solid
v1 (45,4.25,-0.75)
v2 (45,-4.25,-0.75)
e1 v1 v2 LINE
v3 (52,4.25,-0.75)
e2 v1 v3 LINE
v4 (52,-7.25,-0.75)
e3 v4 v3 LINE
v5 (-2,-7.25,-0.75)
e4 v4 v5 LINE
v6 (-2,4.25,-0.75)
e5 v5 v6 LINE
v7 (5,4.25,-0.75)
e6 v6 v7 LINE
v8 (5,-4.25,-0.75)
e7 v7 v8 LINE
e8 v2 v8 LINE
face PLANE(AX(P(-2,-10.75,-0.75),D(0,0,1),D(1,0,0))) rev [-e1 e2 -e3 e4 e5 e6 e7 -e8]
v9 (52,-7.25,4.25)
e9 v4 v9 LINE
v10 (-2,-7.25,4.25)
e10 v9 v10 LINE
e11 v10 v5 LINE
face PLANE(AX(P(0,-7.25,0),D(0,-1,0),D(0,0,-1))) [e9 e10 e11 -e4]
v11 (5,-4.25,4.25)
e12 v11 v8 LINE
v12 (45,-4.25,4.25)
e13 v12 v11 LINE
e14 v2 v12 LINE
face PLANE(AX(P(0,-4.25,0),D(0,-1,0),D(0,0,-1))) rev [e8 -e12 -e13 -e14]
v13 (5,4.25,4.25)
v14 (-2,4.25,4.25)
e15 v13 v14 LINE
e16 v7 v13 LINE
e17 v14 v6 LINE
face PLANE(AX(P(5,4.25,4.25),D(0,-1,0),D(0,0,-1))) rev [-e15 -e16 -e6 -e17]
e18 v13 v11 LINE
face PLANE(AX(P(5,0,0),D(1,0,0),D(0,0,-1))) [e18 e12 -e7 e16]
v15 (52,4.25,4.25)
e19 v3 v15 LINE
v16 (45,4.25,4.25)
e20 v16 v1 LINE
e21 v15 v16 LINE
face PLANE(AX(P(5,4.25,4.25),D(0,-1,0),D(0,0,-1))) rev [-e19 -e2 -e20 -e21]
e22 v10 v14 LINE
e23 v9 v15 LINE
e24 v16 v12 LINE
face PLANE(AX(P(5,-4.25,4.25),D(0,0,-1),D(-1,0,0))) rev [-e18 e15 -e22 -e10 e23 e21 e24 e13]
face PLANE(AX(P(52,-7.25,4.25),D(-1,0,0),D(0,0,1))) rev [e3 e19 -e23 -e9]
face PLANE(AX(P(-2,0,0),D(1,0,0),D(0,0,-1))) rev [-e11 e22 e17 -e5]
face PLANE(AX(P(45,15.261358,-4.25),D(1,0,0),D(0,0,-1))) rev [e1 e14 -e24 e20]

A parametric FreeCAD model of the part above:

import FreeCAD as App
import Part
import Sketcher
from FreeCAD import Vector
Q = App.Units.Quantity


def add_polygon(sketch, points):
    """Adds a closed chain of lines whose ends are joined by coincident constraints."""
    first, n = sketch.GeometryCount, len(points)
    for a, b in zip(points, points[1:] + points[:1]):
        sketch.addGeometry(Part.LineSegment(App.Vector(*a, 0), App.Vector(*b, 0)), False)
    for i in range(n):
        sketch.addConstraint(Sketcher.Constraint("Coincident", first + i, 2, first + (i + 1) % n, 1))

doc = App.newDocument("Part")
body = doc.addObject("PartDesign::Body", "Body")

# Sketch on YZ plane
sketch1 = body.newObject("Sketcher::SketchObject", "Sketch")
sketch1.AttachmentSupport = (doc.getObject("YZ_Plane"), [""])
sketch1.MapMode = "FlatFace"
add_polygon(sketch1, [(4.2, 4.2), (-4.2, 4.2), (-4.2, -4.2), (4.2, -4.2)])  # lines 0-3
add_polygon(sketch1, [(3, 1.7), (3, -1.7), (0, -3.4), (-3, -1.7), (-3, 1.7), (0, 3.4)])  # lines 4-9
sketch1.addConstraint([
    Sketcher.Constraint("Horizontal", 0),
    Sketcher.Constraint("Vertical", 1),
    Sketcher.Constraint("Horizontal", 2),
    Sketcher.Constraint("Vertical", 3),
    Sketcher.Constraint("Vertical", 4),
    Sketcher.Constraint("Vertical", 7),
    Sketcher.Constraint("Symmetric", 0, 2, 2, 2, -1, 1),
    Sketcher.Constraint("Symmetric", 4, 2, 7, 2, -1, 1),
    Sketcher.Constraint("Symmetric", 5, 2, 8, 2, -1, 1),
    Sketcher.Constraint("PointOnObject", 5, 2, -2),
    Sketcher.Constraint("Parallel", 6, 9),
    Sketcher.Constraint("Horizontal", 4, 2, 6, 2),
    Sketcher.Constraint("Equal", 2, 1),
    Sketcher.Constraint("Angle", 5, Q("-150 deg")),
    Sketcher.Constraint("DistanceX", 0, 2, 0, 1, Q("8.5 mm")),
    Sketcher.Constraint("DistanceY", 4, 2, 4, 1, Q("3.41 mm")),
    Sketcher.Constraint("Distance", 5, Q("3.41 mm")),
])
pad1 = body.newObject("PartDesign::Pad", "Pad")
pad1.Profile = sketch1
pad1.Length = 5

# Sketch on YZ plane
sketch2 = body.newObject("Sketcher::SketchObject", "Sketch001")
sketch2.AttachmentSupport = (doc.getObject("YZ_Plane"), [""])
sketch2.MapMode = "FlatFace"
add_polygon(sketch2, [(4, -4), (-4, -4), (-4, 4), (4, 4)])  # lines 0-3
sketch2.addConstraint([
    Sketcher.Constraint("Horizontal", 0),
    Sketcher.Constraint("Vertical", 1),
    Sketcher.Constraint("Horizontal", 2),
    Sketcher.Constraint("Vertical", 3),
    Sketcher.Constraint("Symmetric", 0, 2, 2, 2, -1, 1),
    Sketcher.Constraint("Equal", 2, 1),
    Sketcher.Constraint("DistanceX", 0, 2, 0, 1, Q("8.5 mm")),
])
pad2 = body.newObject("PartDesign::Pad", "Pad001")
pad2.Profile = sketch2
pad2.Length = 2
pad2.Reversed = True

# Sketch on YZ plane
sketch3 = body.newObject("Sketcher::SketchObject", "Sketch002")
sketch3.AttachmentSupport = (doc.getObject("YZ_Plane"), [""])
sketch3.MapMode = "FlatFace"
sketch3.addGeometry(Part.Circle(Vector(0, 0, 0), Vector(0, 0, 1), 1.5), False)
sketch3.addConstraint([
    Sketcher.Constraint("Coincident", 0, 3, -1, 1),
    Sketcher.Constraint("Diameter", 0, Q("3 mm")),
])
pocket1 = body.newObject("PartDesign::Pocket", "Pocket")
pocket1.Profile = sketch3
pocket1.Length = 2

# Sketch on XZ plane
sketch4 = body.newObject("Sketcher::SketchObject", "Sketch003")
sketch4.AttachmentSupport = (doc.getObject("XZ_Plane"), [""])
sketch4.MapMode = "FlatFace"
sketch4.AttachmentOffset = App.Placement(Vector(0, 0, 4.25), App.Rotation())
add_polygon(sketch4, [(-2, 4), (-2, -4), (52, -4), (52, 4)])  # lines 0-3
sketch4.addConstraint([
    Sketcher.Constraint("Vertical", 0),
    Sketcher.Constraint("Horizontal", 1),
    Sketcher.Constraint("Vertical", 2),
    Sketcher.Constraint("Horizontal", 3),
    Sketcher.Constraint("DistanceX", 1, 1, 1, 2, Q("54 mm")),
    Sketcher.Constraint("DistanceY", 0, 2, 0, 1, Q("8.5 mm")),
    Sketcher.Constraint("DistanceX", 0, 2, -1, 1, Q("2 mm")),
    Sketcher.Constraint("DistanceY", 0, 2, -1, 1, Q("4.25 mm")),
])
pad3 = body.newObject("PartDesign::Pad", "Pad002")
pad3.Profile = sketch4
pad3.Length = 3

# Sketch on XZ plane
sketch5 = body.newObject("Sketcher::SketchObject", "Sketch004")
sketch5.AttachmentSupport = (doc.getObject("XZ_Plane"), [""])
sketch5.MapMode = "FlatFace"
sketch5.AttachmentOffset = App.Placement(Vector(0, 0, 4.25), App.Rotation())
add_polygon(sketch5, [(45, -4), (45, 4), (52, 4), (52, -4)])  # lines 0-3
sketch5.addConstraint([
    Sketcher.Constraint("Vertical", 0),
    Sketcher.Constraint("Horizontal", 1),
    Sketcher.Constraint("Vertical", 2),
    Sketcher.Constraint("Horizontal", 3),
    Sketcher.Constraint("DistanceX", 1, 1, 1, 2, Q("7 mm")),
    Sketcher.Constraint("DistanceY", 0, 1, 0, 2, Q("8.5 mm")),
    Sketcher.Constraint("DistanceX", -1, 1, 0, 2, Q("45 mm")),
    Sketcher.Constraint("DistanceY", -1, 1, 0, 2, Q("4.25 mm")),
])
pad4 = body.newObject("PartDesign::Pad", "Pad003")
pad4.Profile = sketch5
pad4.Length = 8.5
pad4.Reversed = True

# Sketch on YZ plane
sketch6 = body.newObject("Sketcher::SketchObject", "Sketch005")
sketch6.AttachmentSupport = (doc.getObject("YZ_Plane"), [""])
sketch6.MapMode = "FlatFace"
add_polygon(sketch6, [(3, 1.7), (0, 3.4), (-3, 1.7), (-3, -1.7), (0, -3.4), (3, -1.7)])  # lines 0-5
sketch6.addGeometry(Part.Circle(Vector(0, 0, 0), Vector(0, 0, 1), 1.5), False)  # 6
sketch6.addConstraint([
    Sketcher.Constraint("Vertical", 2),
    Sketcher.Constraint("Vertical", 5),
    Sketcher.Constraint("Coincident", 6, 3, -1, 1),
    Sketcher.Constraint("Symmetric", 0, 2, 3, 2, -1, 1),
    Sketcher.Constraint("Symmetric", 1, 2, 4, 2, -1, 1),
    Sketcher.Constraint("PointOnObject", 0, 2, -2),
    Sketcher.Constraint("Parallel", 0, 3),
    Sketcher.Constraint("Horizontal", 2, 2, 4, 2),
    Sketcher.Constraint("Diameter", 6, Q("3 mm")),
    Sketcher.Constraint("Angle", 0, Q("150 deg")),
    Sketcher.Constraint("DistanceY", 2, 2, 2, 1, Q("3.41 mm")),
    Sketcher.Constraint("Distance", 0, Q("3.41 mm")),
])
pad5 = body.newObject("PartDesign::Pad", "Pad004")
pad5.Profile = sketch6
pad5.Length = 2.5

# Sketch on YZ plane
sketch7 = body.newObject("Sketcher::SketchObject", "Sketch006")
sketch7.AttachmentSupport = (doc.getObject("YZ_Plane"), [""])
sketch7.MapMode = "FlatFace"
sketch7.AttachmentOffset = App.Placement(Vector(0, 0, 50), App.Rotation())
add_polygon(sketch7, [(0, 3.4), (3, 1.7), (3, -1.7), (0, -3.4), (-3, -1.7), (-3, 1.7)])  # lines 0-5
sketch7.addGeometry(Part.Circle(Vector(0, 0, 0), Vector(0, 0, 1), 1.5), False)  # 6
sketch7.addConstraint([
    Sketcher.Constraint("Vertical", 1),
    Sketcher.Constraint("Vertical", 4),
    Sketcher.Constraint("Coincident", 6, 3, -1, 1),
    Sketcher.Constraint("Symmetric", 0, 2, 3, 2, -1, 1),
    Sketcher.Constraint("Symmetric", 2, 2, 5, 2, -1, 1),
    Sketcher.Constraint("PointOnObject", 2, 2, -2),
    Sketcher.Constraint("Parallel", 2, 5),
    Sketcher.Constraint("Horizontal", 1, 2, 3, 2),
    Sketcher.Constraint("Diameter", 6, Q("3 mm")),
    Sketcher.Constraint("Angle", 0, Q("-30 deg")),
    Sketcher.Constraint("DistanceY", 1, 2, 1, 1, Q("3.41 mm")),
    Sketcher.Constraint("Distance", 0, Q("3.41 mm")),
])
pad6 = body.newObject("PartDesign::Pad", "Pad005")
pad6.Profile = sketch7
pad6.Length = 2.5
pad6.Reversed = True

# Sketch on YZ plane
sketch8 = body.newObject("Sketcher::SketchObject", "Sketch007")
sketch8.AttachmentSupport = (doc.getObject("YZ_Plane"), [""])
sketch8.MapMode = "FlatFace"
sketch8.AttachmentOffset = App.Placement(Vector(0, 0, 5), App.Rotation())
add_polygon(sketch8, [(4.2, 4.2), (-4.2, 4.2), (-4.2, -4.2), (4.2, -4.2)])  # lines 0-3
add_polygon(sketch8, [(3, -1.7), (0, -3.4), (-3, -1.7), (-3, 1.7), (0, 3.4), (3, 1.7)])  # lines 4-9
sketch8.addConstraint([
    Sketcher.Constraint("Horizontal", 0),
    Sketcher.Constraint("Vertical", 1),
    Sketcher.Constraint("Horizontal", 2),
    Sketcher.Constraint("Vertical", 3),
    Sketcher.Constraint("Vertical", 6),
    Sketcher.Constraint("Vertical", 9),
    Sketcher.Constraint("Symmetric", 0, 2, 2, 2, -1, 1),
    Sketcher.Constraint("Symmetric", 4, 2, 7, 2, -1, 1),
    Sketcher.Constraint("Symmetric", 5, 2, 8, 2, -1, 1),
    Sketcher.Constraint("PointOnObject", 4, 2, -2),
    Sketcher.Constraint("Parallel", 4, 7),
    Sketcher.Constraint("Horizontal", 6, 2, 8, 2),
    Sketcher.Constraint("Equal", 2, 1),
    Sketcher.Constraint("Angle", 4, Q("-150 deg")),
    Sketcher.Constraint("DistanceX", 0, 2, 0, 1, Q("8.5 mm")),
    Sketcher.Constraint("DistanceY", 6, 1, 6, 2, Q("3.41 mm")),
    Sketcher.Constraint("Distance", 4, Q("3.41 mm")),
])
pad7 = body.newObject("PartDesign::Pad", "Pad006")
pad7.Profile = sketch8
pad7.Length = 1

# Sketch on YZ plane
sketch9 = body.newObject("Sketcher::SketchObject", "Sketch008")
sketch9.AttachmentSupport = (doc.getObject("YZ_Plane"), [""])
sketch9.MapMode = "FlatFace"
sketch9.AttachmentOffset = App.Placement(Vector(0, 0, 2.5), App.Rotation())
add_polygon(sketch9, [(-3, -1.7), (0, -3.4), (3, -1.7), (3, 1.7), (0, 3.4), (-3, 1.7)])  # lines 0-5
sketch9.addConstraint([
    Sketcher.Constraint("Vertical", 2),
    Sketcher.Constraint("Vertical", 5),
    Sketcher.Constraint("Symmetric", 0, 2, 3, 2, -1, 1),
    Sketcher.Constraint("Symmetric", 1, 2, 4, 2, -1, 1),
    Sketcher.Constraint("PointOnObject", 0, 2, -2),
    Sketcher.Constraint("Parallel", 0, 3),
    Sketcher.Constraint("Horizontal", 2, 2, 4, 2),
    Sketcher.Constraint("Angle", 0, Q("-30 deg")),
    Sketcher.Constraint("DistanceY", 2, 1, 2, 2, Q("3.41 mm")),
    Sketcher.Constraint("Distance", 0, Q("3.41 mm")),
])
pocket2 = body.newObject("PartDesign::Pocket", "Pocket001")
pocket2.Profile = sketch9
pocket2.Length = 0.5

# Sketch on YZ plane
sketch10 = body.newObject("Sketcher::SketchObject", "Sketch009")
sketch10.AttachmentSupport = (doc.getObject("YZ_Plane"), [""])
sketch10.MapMode = "FlatFace"
sketch10.AttachmentOffset = App.Placement(Vector(0, 0, 47.5), App.Rotation())
add_polygon(sketch10, [(3, 1.7), (3, -1.7), (0, -3.4), (-3, -1.7), (-3, 1.7), (0, 3.4)])  # lines 0-5
sketch10.addConstraint([
    Sketcher.Constraint("Vertical", 0),
    Sketcher.Constraint("Vertical", 3),
    Sketcher.Constraint("Symmetric", 0, 2, 3, 2, -1, 1),
    Sketcher.Constraint("Symmetric", 1, 2, 4, 2, -1, 1),
    Sketcher.Constraint("PointOnObject", 1, 2, -2),
    Sketcher.Constraint("Parallel", 2, 5),
    Sketcher.Constraint("Horizontal", 0, 2, 2, 2),
    Sketcher.Constraint("Angle", 1, Q("-150 deg")),
    Sketcher.Constraint("DistanceY", 0, 2, 0, 1, Q("3.41 mm")),
    Sketcher.Constraint("Distance", 1, Q("3.41 mm")),
])
pocket3 = body.newObject("PartDesign::Pocket", "Pocket002")
pocket3.Profile = sketch10
pocket3.Length = 0.5
pocket3.Reversed = True

# Sketch on YZ plane
sketch11 = body.newObject("Sketcher::SketchObject", "Sketch010")
sketch11.AttachmentSupport = (doc.getObject("YZ_Plane"), [""])
sketch11.MapMode = "FlatFace"
sketch11.AttachmentOffset = App.Placement(Vector(0, 0, 6), App.Rotation())
add_polygon(sketch11, [(4, 4), (-4, 4), (-4, -4), (4, -4)])  # lines 0-3
sketch11.addConstraint([
    Sketcher.Constraint("Horizontal", 0),
    Sketcher.Constraint("Vertical", 1),
    Sketcher.Constraint("Horizontal", 2),
    Sketcher.Constraint("Vertical", 3),
    Sketcher.Constraint("Symmetric", 0, 2, 2, 2, -1, 1),
    Sketcher.Constraint("Equal", 2, 1),
    Sketcher.Constraint("DistanceX", 0, 2, 0, 1, Q("8.5 mm")),
])
pad8 = body.newObject("PartDesign::Pad", "Pad007")
pad8.Profile = sketch11
pad8.Length = 8
pad8.Reversed = True

# Sketch on YZ plane
sketch12 = body.newObject("Sketcher::SketchObject", "Sketch011")
sketch12.AttachmentSupport = (doc.getObject("YZ_Plane"), [""])
sketch12.MapMode = "FlatFace"
sketch12.AttachmentOffset = App.Placement(Vector(0, 0, 6), App.Rotation())
add_polygon(sketch12, [(4, 4), (-4, 4), (-4, -4), (4, -4)])  # lines 0-3
sketch12.addConstraint([
    Sketcher.Constraint("Horizontal", 0),
    Sketcher.Constraint("Vertical", 1),
    Sketcher.Constraint("Horizontal", 2),
    Sketcher.Constraint("Vertical", 3),
    Sketcher.Constraint("Symmetric", 0, 2, 2, 2, -1, 1),
    Sketcher.Constraint("Equal", 2, 1),
    Sketcher.Constraint("DistanceX", 0, 2, 0, 1, Q("8.5 mm")),
])
pocket4 = body.newObject("PartDesign::Pocket", "Pocket003")
pocket4.Profile = sketch12
pocket4.Length = 1

# Sketch on XZ plane
sketch13 = body.newObject("Sketcher::SketchObject", "Sketch012")
sketch13.AttachmentSupport = (doc.getObject("XZ_Plane"), [""])
sketch13.MapMode = "FlatFace"
sketch13.AttachmentOffset = App.Placement(Vector(0, 0, -4.25), App.Rotation())
add_polygon(sketch13, [(-2, -4.2), (-2, -0.8), (52, -0.8), (52, -4.2)])  # lines 0-3
sketch13.addConstraint([
    Sketcher.Constraint("Vertical", 0),
    Sketcher.Constraint("Horizontal", 1),
    Sketcher.Constraint("Vertical", 2),
    Sketcher.Constraint("Horizontal", 3),
    Sketcher.Constraint("DistanceX", 1, 1, 1, 2, Q("54 mm")),
    Sketcher.Constraint("DistanceY", 0, 1, 0, 2, Q("3.5 mm")),
    Sketcher.Constraint("DistanceX", 0, 2, -1, 1, Q("2 mm")),
    Sketcher.Constraint("DistanceY", 0, 2, -1, 1, Q("0.75 mm")),
])
pocket5 = body.newObject("PartDesign::Pocket", "Pocket004")
pocket5.Profile = sketch13
pocket5.Length = 15
pocket5.Reversed = True

# Sketch on YZ plane
sketch14 = body.newObject("Sketcher::SketchObject", "Sketch013")
sketch14.AttachmentSupport = (doc.getObject("YZ_Plane"), [""])
sketch14.MapMode = "FlatFace"
sketch14.AttachmentOffset = App.Placement(Vector(0, 0, 45), App.Rotation())
add_polygon(sketch14, [(4, -1), (-4, -1), (-4, 4), (4, 4)])  # lines 0-3
sketch14.addConstraint([
    Sketcher.Constraint("Horizontal", 0),
    Sketcher.Constraint("Vertical", 1),
    Sketcher.Constraint("Horizontal", 2),
    Sketcher.Constraint("Vertical", 3),
    Sketcher.Constraint("DistanceY", 1, 1, 1, 2, Q("5 mm")),
    Sketcher.Constraint("DistanceX", 0, 2, 0, 1, Q("8.5 mm")),
    Sketcher.Constraint("DistanceX", 0, 2, -1, 1, Q("4.25 mm")),
    Sketcher.Constraint("DistanceY", 0, 2, -1, 1, Q("0.75 mm")),
])
pad9 = body.newObject("PartDesign::Pad", "Pad008")
pad9.Profile = sketch14
pad9.Length = 7

doc.recompute()
